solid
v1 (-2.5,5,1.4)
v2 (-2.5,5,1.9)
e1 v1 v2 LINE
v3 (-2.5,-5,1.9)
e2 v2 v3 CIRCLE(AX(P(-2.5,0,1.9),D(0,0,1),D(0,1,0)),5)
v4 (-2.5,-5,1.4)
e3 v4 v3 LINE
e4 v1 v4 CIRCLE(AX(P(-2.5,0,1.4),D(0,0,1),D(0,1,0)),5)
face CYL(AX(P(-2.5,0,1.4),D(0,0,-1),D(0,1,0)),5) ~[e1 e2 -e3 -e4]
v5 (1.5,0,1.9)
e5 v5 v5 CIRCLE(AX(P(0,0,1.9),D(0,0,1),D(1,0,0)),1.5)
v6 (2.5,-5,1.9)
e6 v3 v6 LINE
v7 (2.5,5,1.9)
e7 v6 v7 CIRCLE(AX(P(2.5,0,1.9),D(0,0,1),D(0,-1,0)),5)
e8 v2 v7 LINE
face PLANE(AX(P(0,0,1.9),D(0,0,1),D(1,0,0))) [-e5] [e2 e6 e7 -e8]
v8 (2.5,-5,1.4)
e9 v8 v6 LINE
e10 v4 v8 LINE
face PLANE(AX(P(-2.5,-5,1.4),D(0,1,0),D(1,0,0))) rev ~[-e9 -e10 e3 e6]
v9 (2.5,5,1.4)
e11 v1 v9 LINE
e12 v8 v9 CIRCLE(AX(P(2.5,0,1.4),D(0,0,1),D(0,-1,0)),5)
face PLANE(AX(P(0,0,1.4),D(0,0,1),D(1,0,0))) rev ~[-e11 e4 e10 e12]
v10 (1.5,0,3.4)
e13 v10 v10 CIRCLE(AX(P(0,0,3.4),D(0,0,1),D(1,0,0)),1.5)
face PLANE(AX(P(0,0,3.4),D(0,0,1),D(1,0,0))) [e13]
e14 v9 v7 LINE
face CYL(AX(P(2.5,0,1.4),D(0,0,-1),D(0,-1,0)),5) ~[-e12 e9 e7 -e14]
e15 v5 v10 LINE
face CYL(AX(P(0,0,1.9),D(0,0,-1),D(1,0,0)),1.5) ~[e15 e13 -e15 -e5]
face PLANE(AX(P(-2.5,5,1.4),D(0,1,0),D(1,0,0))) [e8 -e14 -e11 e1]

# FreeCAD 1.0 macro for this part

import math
import FreeCAD as App
import Part
import Sketcher

V = App.Vector

doc = App.newDocument("Part")
body = doc.addObject("PartDesign::Body", "Body")

# Sketch on XY plane
sketch1 = doc.addObject("Sketcher::SketchObject", "Sketch")
body.addObject(sketch1)
sketch1.AttachmentSupport = (doc.XY_Plane, [""])
sketch1.MapMode = "FlatFace"
sketch1.AttachmentOffset = App.Placement(V(0, 0, 1.4), App.Rotation())
sketch1.addGeometry([
    Part.ArcOfCircle(Part.Circle(V(-2, 0, 0), V(0, 0, 1), 5), math.radians(90), math.radians(270)),
    Part.LineSegment(V(-2, -5, 0), V(2, -5, 0)),
    Part.ArcOfCircle(Part.Circle(V(2, 0, 0), V(0, 0, 1), 5), math.radians(-90), math.radians(90)),
    Part.LineSegment(V(2, 5, 0), V(-2, 5, 0)),
], False)
sketch1.addConstraint([
    Sketcher.Constraint("Tangent", 0, 2, 1, 1),
    Sketcher.Constraint("Tangent", 1, 2, 2, 1),
    Sketcher.Constraint("Tangent", 2, 2, 3, 1),
    Sketcher.Constraint("Tangent", 3, 2, 0, 1),
    Sketcher.Constraint("Horizontal", 1),
    Sketcher.Constraint("Horizontal", 3),
    Sketcher.Constraint("Symmetric", 0, 3, 2, 3, -1, 1),
    Sketcher.Constraint("Radius", 0, 5.0),
    Sketcher.Constraint("DistanceX", 1, 1, 1, 2, 5.0),
])
pad1 = doc.addObject("PartDesign::Pad", "Pad")
body.addObject(pad1)
pad1.Profile = sketch1
pad1.Length = 0.5

# Sketch on XY plane
sketch2 = doc.addObject("Sketcher::SketchObject", "Sketch001")
body.addObject(sketch2)
sketch2.AttachmentSupport = (doc.XY_Plane, [""])
sketch2.MapMode = "FlatFace"
sketch2.AttachmentOffset = App.Placement(V(0, 0, 1.9), App.Rotation())
sketch2.addGeometry(Part.Circle(V(0, 0, 0), V(0, 0, 1), 1.5), False)
sketch2.addConstraint([
    Sketcher.Constraint("Coincident", 0, 3, -1, 1),
    Sketcher.Constraint("Diameter", 0, 3.0),
])
pad2 = doc.addObject("PartDesign::Pad", "Pad001")
body.addObject(pad2)
pad2.Profile = sketch2
pad2.Length = 1.5

doc.recompute()
